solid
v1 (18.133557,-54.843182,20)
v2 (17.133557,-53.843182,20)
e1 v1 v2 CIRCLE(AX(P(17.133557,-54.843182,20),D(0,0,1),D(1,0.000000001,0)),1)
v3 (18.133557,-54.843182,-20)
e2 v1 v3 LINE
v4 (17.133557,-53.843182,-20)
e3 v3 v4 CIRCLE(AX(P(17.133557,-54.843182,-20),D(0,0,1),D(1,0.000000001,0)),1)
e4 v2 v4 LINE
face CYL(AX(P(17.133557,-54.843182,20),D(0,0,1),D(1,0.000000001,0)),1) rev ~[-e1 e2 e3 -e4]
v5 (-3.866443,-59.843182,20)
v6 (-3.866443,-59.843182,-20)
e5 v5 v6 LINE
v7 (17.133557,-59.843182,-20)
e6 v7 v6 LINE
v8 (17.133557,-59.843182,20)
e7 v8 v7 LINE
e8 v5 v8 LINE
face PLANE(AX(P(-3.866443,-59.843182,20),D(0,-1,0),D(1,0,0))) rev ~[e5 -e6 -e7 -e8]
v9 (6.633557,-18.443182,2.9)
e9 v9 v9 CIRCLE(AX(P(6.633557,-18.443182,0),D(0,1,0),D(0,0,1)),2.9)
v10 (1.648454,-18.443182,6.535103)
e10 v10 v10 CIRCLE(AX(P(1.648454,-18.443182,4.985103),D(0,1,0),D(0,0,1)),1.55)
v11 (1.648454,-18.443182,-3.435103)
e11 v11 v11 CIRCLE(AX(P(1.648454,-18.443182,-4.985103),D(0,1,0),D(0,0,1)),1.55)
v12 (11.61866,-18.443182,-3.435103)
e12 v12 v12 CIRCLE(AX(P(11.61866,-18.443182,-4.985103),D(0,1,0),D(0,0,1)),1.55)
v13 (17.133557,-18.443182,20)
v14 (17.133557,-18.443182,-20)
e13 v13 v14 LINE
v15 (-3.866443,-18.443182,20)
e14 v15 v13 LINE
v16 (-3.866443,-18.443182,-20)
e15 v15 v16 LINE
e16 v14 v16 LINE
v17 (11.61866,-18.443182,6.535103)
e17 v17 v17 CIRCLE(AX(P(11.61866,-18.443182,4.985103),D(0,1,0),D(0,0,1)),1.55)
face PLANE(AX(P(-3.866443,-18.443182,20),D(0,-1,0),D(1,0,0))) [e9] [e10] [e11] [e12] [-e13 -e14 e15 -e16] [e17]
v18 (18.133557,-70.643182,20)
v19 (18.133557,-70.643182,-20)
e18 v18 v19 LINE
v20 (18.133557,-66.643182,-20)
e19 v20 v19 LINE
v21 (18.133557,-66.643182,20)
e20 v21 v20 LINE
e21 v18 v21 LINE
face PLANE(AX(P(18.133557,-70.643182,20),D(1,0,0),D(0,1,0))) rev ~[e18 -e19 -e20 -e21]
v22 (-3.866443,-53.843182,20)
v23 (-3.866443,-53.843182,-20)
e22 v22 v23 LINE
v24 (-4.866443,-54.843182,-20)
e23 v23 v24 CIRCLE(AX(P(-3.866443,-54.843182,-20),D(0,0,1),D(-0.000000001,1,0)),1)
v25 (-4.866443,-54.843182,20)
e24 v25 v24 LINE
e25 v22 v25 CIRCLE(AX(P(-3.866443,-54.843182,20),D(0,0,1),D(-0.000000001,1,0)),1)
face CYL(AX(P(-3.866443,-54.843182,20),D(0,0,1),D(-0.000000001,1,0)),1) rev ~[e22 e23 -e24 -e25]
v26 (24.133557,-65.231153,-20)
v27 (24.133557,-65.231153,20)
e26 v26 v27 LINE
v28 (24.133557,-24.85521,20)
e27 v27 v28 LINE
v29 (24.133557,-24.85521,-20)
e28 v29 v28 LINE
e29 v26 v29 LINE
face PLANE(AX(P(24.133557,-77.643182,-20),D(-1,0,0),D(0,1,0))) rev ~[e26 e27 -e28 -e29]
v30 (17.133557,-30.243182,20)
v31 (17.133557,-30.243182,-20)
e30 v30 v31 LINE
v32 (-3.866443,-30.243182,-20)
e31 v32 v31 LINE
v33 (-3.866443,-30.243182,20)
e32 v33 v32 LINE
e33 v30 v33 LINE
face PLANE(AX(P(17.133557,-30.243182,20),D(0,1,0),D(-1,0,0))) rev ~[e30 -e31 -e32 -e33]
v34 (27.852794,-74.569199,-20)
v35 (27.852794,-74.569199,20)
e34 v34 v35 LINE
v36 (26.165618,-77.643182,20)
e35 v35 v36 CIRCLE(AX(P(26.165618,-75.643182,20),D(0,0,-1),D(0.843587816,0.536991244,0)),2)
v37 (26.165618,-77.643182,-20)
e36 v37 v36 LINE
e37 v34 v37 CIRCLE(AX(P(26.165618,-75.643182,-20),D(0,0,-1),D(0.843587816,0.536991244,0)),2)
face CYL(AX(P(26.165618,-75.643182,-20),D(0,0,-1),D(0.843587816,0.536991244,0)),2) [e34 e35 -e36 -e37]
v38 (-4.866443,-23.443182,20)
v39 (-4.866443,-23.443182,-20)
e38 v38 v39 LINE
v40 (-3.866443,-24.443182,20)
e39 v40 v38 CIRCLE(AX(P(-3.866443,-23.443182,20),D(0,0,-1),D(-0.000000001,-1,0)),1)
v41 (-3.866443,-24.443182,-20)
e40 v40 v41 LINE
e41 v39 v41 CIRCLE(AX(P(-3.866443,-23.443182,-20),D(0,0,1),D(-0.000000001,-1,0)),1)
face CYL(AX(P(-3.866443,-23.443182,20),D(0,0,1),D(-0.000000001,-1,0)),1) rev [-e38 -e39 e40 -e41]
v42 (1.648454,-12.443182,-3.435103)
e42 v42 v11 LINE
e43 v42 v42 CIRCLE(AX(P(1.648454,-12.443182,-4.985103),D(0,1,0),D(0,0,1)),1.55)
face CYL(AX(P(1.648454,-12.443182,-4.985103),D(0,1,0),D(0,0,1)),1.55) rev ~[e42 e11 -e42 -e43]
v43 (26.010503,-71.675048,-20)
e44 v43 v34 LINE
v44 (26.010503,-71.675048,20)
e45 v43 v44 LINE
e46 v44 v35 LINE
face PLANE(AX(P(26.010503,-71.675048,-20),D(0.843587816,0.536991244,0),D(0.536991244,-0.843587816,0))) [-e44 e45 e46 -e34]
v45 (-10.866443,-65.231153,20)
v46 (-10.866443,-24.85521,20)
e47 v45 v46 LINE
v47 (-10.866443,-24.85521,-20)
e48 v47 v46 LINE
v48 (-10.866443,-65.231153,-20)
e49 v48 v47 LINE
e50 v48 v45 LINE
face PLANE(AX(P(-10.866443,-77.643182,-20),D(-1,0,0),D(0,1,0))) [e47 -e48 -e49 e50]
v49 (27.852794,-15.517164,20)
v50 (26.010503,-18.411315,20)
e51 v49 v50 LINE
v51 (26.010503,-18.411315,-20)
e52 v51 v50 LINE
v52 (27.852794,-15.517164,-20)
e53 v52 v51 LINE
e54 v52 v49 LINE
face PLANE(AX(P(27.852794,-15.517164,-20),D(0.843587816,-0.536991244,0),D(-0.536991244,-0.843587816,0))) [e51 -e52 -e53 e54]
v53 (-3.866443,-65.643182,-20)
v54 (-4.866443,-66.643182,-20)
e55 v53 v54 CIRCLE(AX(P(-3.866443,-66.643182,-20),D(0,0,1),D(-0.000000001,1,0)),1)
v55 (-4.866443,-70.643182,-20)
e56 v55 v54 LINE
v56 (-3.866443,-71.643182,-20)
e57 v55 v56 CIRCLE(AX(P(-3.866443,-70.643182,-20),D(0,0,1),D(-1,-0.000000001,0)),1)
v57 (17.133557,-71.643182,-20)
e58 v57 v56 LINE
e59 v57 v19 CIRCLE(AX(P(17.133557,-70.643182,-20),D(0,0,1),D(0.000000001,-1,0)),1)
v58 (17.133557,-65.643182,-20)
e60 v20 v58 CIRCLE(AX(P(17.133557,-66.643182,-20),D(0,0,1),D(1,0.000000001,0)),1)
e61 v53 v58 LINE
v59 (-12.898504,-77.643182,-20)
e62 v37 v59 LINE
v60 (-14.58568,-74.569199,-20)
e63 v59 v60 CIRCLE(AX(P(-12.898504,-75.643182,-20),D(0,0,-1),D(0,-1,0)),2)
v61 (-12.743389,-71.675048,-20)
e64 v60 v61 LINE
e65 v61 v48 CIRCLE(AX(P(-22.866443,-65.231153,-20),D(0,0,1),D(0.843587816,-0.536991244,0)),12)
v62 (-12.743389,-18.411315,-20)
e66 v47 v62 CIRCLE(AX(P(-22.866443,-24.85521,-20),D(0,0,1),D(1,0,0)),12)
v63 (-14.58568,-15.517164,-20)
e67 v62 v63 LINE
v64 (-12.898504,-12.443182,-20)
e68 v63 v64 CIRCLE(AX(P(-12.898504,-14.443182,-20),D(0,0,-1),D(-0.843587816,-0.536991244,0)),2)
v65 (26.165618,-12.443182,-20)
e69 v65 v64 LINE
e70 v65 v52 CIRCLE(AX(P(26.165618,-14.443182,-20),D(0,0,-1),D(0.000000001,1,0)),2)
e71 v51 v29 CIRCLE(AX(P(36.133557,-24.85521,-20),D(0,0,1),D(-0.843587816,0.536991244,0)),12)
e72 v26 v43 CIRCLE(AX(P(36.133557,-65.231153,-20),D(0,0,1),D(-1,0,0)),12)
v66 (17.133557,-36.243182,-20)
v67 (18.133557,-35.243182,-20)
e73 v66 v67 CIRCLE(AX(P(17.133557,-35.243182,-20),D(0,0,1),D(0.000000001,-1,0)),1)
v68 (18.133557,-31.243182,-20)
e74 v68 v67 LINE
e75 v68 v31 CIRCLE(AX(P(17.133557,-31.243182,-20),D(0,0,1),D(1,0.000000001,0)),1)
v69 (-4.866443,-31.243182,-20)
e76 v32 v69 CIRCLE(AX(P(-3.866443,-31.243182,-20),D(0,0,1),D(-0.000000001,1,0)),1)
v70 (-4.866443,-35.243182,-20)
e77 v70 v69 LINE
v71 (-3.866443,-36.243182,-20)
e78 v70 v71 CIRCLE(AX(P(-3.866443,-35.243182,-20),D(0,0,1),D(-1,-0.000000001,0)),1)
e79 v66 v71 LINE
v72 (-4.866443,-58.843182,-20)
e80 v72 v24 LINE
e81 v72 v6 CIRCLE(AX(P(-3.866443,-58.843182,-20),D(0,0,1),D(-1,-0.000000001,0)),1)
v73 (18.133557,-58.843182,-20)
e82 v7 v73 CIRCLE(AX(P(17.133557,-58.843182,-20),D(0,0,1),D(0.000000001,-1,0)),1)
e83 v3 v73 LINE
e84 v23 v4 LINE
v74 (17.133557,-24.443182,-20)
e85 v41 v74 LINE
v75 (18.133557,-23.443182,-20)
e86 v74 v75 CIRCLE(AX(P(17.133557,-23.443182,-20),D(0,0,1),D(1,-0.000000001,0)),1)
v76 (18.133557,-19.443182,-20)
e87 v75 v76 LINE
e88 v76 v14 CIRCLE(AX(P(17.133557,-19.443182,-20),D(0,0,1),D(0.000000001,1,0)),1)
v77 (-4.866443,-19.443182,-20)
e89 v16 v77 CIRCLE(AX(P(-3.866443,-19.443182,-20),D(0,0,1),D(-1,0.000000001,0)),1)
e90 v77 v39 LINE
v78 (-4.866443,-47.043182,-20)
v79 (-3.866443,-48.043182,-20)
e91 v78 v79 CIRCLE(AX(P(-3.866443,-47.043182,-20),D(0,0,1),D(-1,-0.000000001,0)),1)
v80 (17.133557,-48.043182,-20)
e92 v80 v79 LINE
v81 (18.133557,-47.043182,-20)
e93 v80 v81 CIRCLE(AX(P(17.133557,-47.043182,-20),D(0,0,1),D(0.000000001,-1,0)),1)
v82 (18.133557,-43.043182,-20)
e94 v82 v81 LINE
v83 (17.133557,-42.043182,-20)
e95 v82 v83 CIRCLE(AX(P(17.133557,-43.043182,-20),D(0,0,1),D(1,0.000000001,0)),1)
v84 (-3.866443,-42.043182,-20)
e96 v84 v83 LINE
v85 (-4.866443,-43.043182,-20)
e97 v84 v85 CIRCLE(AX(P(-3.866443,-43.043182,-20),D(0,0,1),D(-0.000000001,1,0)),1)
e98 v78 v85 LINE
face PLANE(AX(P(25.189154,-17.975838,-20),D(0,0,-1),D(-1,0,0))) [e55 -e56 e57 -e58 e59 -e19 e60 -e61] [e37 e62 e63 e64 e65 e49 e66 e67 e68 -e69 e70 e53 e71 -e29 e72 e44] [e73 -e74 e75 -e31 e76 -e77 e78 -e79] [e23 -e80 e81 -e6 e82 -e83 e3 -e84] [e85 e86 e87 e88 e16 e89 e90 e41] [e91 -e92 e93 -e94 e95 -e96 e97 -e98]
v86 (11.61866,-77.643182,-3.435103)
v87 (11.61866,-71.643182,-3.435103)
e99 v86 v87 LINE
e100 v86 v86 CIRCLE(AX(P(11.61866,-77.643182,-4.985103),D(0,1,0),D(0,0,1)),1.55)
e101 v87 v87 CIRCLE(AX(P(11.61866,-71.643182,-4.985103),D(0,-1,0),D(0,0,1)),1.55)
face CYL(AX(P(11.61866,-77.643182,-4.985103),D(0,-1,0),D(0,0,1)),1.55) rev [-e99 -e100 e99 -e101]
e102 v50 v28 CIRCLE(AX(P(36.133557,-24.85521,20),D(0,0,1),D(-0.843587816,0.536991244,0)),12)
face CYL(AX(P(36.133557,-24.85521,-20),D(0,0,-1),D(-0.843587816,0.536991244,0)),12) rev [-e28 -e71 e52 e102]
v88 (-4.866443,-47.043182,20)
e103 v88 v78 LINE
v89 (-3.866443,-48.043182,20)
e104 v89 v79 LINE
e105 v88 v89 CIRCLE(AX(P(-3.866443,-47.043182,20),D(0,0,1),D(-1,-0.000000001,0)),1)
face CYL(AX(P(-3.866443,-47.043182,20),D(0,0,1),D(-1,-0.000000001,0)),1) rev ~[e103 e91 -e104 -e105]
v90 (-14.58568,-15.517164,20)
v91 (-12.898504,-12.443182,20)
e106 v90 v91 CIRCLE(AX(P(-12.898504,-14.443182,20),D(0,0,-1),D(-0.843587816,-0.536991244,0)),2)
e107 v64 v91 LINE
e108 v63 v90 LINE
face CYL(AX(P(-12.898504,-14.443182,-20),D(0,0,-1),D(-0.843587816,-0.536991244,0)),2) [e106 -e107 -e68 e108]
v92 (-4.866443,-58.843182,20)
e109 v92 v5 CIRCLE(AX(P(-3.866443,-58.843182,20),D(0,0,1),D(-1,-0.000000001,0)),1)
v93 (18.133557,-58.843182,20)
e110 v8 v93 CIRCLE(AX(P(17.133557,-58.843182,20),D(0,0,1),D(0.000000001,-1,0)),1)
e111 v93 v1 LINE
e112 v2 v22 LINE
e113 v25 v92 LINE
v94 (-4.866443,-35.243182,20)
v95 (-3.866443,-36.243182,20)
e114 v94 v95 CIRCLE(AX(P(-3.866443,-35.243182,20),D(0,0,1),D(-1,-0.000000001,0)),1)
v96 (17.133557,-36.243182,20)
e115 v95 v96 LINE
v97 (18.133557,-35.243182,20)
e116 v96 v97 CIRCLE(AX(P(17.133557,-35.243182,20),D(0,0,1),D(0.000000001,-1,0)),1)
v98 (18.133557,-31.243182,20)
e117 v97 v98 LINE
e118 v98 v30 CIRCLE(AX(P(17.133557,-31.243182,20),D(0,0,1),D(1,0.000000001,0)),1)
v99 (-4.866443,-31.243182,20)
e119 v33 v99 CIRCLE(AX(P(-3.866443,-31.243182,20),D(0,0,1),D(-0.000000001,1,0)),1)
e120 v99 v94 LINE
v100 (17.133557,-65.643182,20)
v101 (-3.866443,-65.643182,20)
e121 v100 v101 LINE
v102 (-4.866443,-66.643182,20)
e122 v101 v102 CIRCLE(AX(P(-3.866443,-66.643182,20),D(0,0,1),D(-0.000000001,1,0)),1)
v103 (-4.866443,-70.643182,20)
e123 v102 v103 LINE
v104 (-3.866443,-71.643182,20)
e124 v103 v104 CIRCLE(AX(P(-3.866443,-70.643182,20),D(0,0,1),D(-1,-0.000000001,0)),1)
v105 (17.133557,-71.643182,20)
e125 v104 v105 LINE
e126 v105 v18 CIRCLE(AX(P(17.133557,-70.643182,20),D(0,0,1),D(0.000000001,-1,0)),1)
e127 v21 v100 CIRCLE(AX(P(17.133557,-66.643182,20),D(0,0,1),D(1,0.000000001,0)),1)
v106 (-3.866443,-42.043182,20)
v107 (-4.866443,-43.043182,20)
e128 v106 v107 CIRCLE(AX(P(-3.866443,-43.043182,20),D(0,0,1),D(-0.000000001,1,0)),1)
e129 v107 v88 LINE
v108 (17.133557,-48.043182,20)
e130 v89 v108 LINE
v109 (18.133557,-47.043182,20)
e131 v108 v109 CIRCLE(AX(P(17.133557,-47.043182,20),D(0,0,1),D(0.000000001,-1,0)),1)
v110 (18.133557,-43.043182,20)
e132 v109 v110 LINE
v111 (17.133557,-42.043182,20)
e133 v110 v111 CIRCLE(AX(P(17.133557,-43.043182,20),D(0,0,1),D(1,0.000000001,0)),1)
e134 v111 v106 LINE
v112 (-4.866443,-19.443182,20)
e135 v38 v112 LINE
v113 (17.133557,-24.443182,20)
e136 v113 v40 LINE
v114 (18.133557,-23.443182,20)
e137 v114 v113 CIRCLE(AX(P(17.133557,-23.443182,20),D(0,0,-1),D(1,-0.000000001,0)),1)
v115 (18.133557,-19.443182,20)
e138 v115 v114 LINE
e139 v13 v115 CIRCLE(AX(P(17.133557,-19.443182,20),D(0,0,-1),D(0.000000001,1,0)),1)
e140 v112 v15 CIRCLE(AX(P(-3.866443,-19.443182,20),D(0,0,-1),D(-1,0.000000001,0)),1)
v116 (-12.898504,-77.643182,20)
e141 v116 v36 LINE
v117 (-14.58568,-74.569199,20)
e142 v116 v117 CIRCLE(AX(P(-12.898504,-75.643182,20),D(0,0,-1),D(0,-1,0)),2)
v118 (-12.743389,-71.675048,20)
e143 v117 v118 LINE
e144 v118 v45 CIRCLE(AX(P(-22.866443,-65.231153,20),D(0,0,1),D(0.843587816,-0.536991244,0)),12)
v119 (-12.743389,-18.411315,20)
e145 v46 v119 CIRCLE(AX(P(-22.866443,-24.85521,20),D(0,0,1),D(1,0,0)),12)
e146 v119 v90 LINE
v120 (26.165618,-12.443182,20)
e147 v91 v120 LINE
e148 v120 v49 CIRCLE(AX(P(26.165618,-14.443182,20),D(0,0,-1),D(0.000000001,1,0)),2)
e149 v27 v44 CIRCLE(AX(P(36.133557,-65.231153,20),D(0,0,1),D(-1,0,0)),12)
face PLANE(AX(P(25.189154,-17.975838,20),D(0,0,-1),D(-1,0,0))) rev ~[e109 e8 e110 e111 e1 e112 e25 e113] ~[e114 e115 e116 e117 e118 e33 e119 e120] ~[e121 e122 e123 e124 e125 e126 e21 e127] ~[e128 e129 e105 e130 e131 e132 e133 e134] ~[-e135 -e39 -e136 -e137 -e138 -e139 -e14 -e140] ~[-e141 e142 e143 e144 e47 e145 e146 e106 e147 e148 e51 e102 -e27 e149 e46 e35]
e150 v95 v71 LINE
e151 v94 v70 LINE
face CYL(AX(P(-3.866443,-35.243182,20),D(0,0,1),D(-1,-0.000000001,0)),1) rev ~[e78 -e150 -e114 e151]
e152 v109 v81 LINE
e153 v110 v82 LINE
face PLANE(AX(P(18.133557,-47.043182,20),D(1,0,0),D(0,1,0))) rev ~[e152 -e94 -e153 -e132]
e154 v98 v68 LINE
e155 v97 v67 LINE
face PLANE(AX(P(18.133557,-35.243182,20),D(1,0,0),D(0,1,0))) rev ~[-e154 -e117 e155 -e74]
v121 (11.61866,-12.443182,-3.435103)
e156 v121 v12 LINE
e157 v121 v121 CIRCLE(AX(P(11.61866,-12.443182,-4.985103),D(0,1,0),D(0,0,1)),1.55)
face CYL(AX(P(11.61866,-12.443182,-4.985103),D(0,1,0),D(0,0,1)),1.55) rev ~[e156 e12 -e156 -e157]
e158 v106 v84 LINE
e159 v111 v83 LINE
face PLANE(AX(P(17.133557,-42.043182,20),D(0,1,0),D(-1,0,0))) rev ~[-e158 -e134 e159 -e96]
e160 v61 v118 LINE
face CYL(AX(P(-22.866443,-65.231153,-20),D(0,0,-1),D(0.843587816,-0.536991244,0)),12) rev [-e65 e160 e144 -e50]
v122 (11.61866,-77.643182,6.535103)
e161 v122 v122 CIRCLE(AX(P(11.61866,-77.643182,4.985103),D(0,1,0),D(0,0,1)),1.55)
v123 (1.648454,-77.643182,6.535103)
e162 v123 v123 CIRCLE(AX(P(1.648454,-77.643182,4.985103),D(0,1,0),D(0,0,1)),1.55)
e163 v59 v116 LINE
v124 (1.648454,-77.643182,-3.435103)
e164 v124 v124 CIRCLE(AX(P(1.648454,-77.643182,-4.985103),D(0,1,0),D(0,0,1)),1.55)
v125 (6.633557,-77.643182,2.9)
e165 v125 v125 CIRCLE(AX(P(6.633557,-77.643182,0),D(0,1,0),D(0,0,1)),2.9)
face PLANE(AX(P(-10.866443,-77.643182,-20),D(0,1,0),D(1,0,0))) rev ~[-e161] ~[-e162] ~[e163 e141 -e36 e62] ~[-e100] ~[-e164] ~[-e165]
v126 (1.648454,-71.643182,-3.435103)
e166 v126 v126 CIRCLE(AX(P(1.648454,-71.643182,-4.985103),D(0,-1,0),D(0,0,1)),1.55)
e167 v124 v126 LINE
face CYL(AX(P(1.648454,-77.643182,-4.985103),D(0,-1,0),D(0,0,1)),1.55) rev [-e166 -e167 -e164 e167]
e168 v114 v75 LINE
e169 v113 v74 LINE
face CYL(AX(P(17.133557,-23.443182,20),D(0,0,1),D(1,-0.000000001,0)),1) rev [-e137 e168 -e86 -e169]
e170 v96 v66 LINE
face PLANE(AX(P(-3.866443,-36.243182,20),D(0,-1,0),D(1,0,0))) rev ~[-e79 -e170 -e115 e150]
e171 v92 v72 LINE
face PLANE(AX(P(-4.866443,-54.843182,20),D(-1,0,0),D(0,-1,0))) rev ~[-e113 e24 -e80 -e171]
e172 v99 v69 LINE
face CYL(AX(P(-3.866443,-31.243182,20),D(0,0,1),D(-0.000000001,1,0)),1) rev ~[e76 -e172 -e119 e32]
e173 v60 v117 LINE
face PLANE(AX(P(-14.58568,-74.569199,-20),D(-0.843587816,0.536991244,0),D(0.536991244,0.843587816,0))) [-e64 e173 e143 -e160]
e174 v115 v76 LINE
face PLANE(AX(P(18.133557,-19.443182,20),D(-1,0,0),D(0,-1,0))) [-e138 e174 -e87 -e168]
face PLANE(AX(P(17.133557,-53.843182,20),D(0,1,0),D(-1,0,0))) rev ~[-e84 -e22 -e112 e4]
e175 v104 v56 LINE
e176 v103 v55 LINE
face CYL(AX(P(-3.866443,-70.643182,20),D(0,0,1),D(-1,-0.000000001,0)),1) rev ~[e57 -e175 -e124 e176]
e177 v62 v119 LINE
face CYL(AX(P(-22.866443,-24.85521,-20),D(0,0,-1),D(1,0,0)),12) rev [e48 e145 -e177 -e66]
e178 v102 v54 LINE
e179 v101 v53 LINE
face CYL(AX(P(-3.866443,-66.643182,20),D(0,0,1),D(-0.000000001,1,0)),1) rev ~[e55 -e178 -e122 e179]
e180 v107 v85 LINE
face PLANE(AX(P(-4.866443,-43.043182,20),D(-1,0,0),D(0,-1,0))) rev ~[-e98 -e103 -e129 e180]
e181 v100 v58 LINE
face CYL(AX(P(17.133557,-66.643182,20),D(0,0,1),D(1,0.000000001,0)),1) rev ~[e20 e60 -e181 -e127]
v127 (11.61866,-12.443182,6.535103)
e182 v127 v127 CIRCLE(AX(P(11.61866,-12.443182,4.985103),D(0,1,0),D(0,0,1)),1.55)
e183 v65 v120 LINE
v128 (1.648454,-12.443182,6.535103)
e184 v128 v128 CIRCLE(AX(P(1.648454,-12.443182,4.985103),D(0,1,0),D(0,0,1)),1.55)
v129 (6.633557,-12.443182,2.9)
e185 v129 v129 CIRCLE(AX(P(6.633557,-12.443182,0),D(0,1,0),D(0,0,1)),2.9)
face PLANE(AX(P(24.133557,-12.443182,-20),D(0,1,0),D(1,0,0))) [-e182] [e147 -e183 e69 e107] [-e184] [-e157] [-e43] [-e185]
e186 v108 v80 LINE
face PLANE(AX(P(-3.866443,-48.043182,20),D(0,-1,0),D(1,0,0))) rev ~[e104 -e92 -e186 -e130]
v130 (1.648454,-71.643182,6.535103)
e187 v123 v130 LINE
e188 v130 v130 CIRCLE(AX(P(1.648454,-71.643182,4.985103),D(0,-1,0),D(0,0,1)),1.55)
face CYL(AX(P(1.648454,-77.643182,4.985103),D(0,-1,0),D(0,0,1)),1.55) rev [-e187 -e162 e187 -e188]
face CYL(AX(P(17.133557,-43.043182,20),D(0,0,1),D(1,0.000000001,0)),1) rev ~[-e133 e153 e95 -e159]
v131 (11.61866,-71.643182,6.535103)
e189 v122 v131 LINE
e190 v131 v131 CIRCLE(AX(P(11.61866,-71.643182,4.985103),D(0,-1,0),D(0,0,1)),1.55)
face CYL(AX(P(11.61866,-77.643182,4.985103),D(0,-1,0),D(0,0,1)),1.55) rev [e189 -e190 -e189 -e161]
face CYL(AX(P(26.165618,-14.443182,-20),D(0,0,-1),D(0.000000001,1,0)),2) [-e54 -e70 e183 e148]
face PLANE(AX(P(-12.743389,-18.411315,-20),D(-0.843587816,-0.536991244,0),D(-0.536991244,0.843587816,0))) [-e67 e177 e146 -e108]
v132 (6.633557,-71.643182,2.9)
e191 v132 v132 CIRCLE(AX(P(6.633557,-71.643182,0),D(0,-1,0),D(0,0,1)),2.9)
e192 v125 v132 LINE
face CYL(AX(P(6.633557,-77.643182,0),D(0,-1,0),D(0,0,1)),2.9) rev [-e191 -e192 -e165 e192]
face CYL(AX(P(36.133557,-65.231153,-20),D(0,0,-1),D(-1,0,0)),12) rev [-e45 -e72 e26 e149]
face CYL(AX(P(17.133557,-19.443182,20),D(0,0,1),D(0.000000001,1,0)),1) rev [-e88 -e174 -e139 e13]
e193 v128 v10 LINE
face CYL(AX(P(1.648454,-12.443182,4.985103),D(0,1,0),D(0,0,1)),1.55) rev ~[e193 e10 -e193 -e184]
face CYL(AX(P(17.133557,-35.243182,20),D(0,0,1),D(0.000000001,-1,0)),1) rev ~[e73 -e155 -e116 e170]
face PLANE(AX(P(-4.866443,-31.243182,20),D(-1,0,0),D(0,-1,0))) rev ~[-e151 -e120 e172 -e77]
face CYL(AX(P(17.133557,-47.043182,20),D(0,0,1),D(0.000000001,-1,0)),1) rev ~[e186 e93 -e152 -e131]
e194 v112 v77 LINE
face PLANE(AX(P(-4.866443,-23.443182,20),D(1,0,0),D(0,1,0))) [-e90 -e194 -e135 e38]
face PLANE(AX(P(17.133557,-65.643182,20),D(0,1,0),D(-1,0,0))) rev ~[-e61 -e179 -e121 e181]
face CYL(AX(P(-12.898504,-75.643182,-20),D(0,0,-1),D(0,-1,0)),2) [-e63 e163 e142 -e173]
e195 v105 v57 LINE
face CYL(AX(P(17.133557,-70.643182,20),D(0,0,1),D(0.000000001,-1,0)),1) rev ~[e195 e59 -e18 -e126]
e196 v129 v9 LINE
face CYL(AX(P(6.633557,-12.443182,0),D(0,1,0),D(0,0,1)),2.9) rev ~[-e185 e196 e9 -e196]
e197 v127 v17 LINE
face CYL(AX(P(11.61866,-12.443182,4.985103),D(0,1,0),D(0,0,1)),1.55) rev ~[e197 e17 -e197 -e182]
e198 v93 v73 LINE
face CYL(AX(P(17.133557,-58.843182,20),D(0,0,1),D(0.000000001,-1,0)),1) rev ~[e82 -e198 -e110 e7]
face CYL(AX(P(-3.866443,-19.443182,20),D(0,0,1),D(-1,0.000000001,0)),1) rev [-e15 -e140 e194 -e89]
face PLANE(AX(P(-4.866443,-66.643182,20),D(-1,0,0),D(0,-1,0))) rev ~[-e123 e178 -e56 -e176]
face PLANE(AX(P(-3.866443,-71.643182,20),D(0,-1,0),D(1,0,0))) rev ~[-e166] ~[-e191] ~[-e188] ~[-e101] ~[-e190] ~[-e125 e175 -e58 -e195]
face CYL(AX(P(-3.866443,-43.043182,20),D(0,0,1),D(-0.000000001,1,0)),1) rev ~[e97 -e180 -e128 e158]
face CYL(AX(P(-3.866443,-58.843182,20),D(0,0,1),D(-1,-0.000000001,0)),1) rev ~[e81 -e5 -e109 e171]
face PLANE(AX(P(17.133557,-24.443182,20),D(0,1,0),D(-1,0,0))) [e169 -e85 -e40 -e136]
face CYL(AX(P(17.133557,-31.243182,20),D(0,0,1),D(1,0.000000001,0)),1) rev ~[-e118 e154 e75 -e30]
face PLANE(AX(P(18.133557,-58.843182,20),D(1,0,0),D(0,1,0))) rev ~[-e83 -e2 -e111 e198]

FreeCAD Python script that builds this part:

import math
import FreeCAD as App
import Part
import Sketcher
from FreeCAD import Vector

doc = App.newDocument("Part")
body = doc.addObject("PartDesign::Body", "Body")

sketch1 = body.newObject("Sketcher::SketchObject", "Sketch")
sketch1.AttachmentSupport = (doc.getObject("XY_Plane"), [""])
sketch1.MapMode = "FlatFace"
sketch1.addGeometry(Part.LineSegment(Vector(-11, -12, 0), Vector(-11, -78, 0)), False)
sketch1.addGeometry(Part.LineSegment(Vector(-11, -78, 0), Vector(24, -78, 0)), False)
sketch1.addGeometry(Part.LineSegment(Vector(24, -78, 0), Vector(24, -12, 0)), False)
sketch1.addGeometry(Part.LineSegment(Vector(24, -12, 0), Vector(-11, -12, 0)), False)
sketch1.addConstraint(Sketcher.Constraint("Coincident", 0, 2, 1, 1))
sketch1.addConstraint(Sketcher.Constraint("Coincident", 1, 2, 2, 1))
sketch1.addConstraint(Sketcher.Constraint("Coincident", 2, 2, 3, 1))
sketch1.addConstraint(Sketcher.Constraint("Coincident", 3, 2, 0, 1))
sketch1.addConstraint(Sketcher.Constraint("Vertical", 0))
sketch1.addConstraint(Sketcher.Constraint("Horizontal", 1))
sketch1.addConstraint(Sketcher.Constraint("Vertical", 2))
sketch1.addConstraint(Sketcher.Constraint("Horizontal", 3))
sketch1.addConstraint(Sketcher.Constraint("DistanceX", 1, 1, 1, 2, 35.0))
sketch1.addConstraint(Sketcher.Constraint("DistanceY", 0, 2, 0, 1, 65.2))
sketch1.addConstraint(Sketcher.Constraint("DistanceY", 0, 2, -1, 1, 77.643182))
sketch1.addConstraint(Sketcher.Constraint("DistanceX", 0, 2, -1, 1, 10.866443))
pad1 = body.newObject("PartDesign::Pad", "Pad")
pad1.Profile = sketch1
pad1.Type = "TwoLengths"
pad1.Length = 20
pad1.Length2 = 20

sketch2 = body.newObject("Sketcher::SketchObject", "Sketch001")
sketch2.AttachmentSupport = (doc.getObject("XY_Plane"), [""])
sketch2.MapMode = "FlatFace"
sketch2.AttachmentOffset = App.Placement(Vector(0, 0, 20), App.Rotation())
sketch2.addGeometry(Part.LineSegment(Vector(-4.9, -31.2, 0), Vector(-4.9, -35.2, 0)), False)
sketch2.addGeometry(Part.ArcOfCircle(Part.Circle(Vector(-3.9, -35.2, 0), Vector(0, 0, 1), 1), math.radians(-180), math.radians(-90)), False)
sketch2.addGeometry(Part.LineSegment(Vector(-3.9, -36.2, 0), Vector(17.1, -36.2, 0)), False)
sketch2.addGeometry(Part.ArcOfCircle(Part.Circle(Vector(17.1, -35.2, 0), Vector(0, 0, 1), 1), math.radians(-90), math.radians(0)), False)
sketch2.addGeometry(Part.LineSegment(Vector(18.1, -35.2, 0), Vector(18.1, -31.2, 0)), False)
sketch2.addGeometry(Part.ArcOfCircle(Part.Circle(Vector(17.1, -31.2, 0), Vector(0, 0, 1), 1), math.radians(0), math.radians(90)), False)
sketch2.addGeometry(Part.LineSegment(Vector(17.1, -30.2, 0), Vector(-3.9, -30.2, 0)), False)
sketch2.addGeometry(Part.ArcOfCircle(Part.Circle(Vector(-3.9, -31.2, 0), Vector(0, 0, 1), 1), math.radians(90), math.radians(180)), False)
sketch2.addConstraint(Sketcher.Constraint("Tangent", 0, 2, 1, 1))
sketch2.addConstraint(Sketcher.Constraint("Tangent", 1, 2, 2, 1))
sketch2.addConstraint(Sketcher.Constraint("Tangent", 2, 2, 3, 1))
sketch2.addConstraint(Sketcher.Constraint("Tangent", 3, 2, 4, 1))
sketch2.addConstraint(Sketcher.Constraint("Tangent", 4, 2, 5, 1))
sketch2.addConstraint(Sketcher.Constraint("Tangent", 5, 2, 6, 1))
sketch2.addConstraint(Sketcher.Constraint("Tangent", 6, 2, 7, 1))
sketch2.addConstraint(Sketcher.Constraint("Tangent", 7, 2, 0, 1))
sketch2.addConstraint(Sketcher.Constraint("Vertical", 0))
sketch2.addConstraint(Sketcher.Constraint("Horizontal", 2))
sketch2.addConstraint(Sketcher.Constraint("Vertical", 4))
sketch2.addConstraint(Sketcher.Constraint("Horizontal", 6))
sketch2.addConstraint(Sketcher.Constraint("Equal", 1, 3))
sketch2.addConstraint(Sketcher.Constraint("Equal", 3, 5))
sketch2.addConstraint(Sketcher.Constraint("Equal", 5, 7))
sketch2.addConstraint(Sketcher.Constraint("Radius", 1, 1.0))
sketch2.addConstraint(Sketcher.Constraint("DistanceX", 2, 1, 2, 2, 21.0))
sketch2.addConstraint(Sketcher.Constraint("DistanceY", 0, 2, 0, 1, 4.0))
sketch2.addConstraint(Sketcher.Constraint("DistanceY", 1, 3, -1, 1, 35.243182))
sketch2.addConstraint(Sketcher.Constraint("DistanceX", 1, 3, -1, 1, 3.866443))
pocket1 = body.newObject("PartDesign::Pocket", "Pocket")
pocket1.Profile = sketch2
pocket1.Type = "UpToFirst"

sketch3 = body.newObject("Sketcher::SketchObject", "Sketch002")
sketch3.AttachmentSupport = (doc.getObject("XY_Plane"), [""])
sketch3.MapMode = "FlatFace"
sketch3.AttachmentOffset = App.Placement(Vector(0, 0, 20), App.Rotation())
sketch3.addGeometry(Part.LineSegment(Vector(-4.9, -43, 0), Vector(-4.9, -47, 0)), False)
sketch3.addGeometry(Part.ArcOfCircle(Part.Circle(Vector(-3.9, -47, 0), Vector(0, 0, 1), 1), math.radians(-180), math.radians(-90)), False)
sketch3.addGeometry(Part.LineSegment(Vector(-3.9, -48, 0), Vector(17.1, -48, 0)), False)
sketch3.addGeometry(Part.ArcOfCircle(Part.Circle(Vector(17.1, -47, 0), Vector(0, 0, 1), 1), math.radians(-90), math.radians(0)), False)
sketch3.addGeometry(Part.LineSegment(Vector(18.1, -47, 0), Vector(18.1, -43, 0)), False)
sketch3.addGeometry(Part.ArcOfCircle(Part.Circle(Vector(17.1, -43, 0), Vector(0, 0, 1), 1), math.radians(0), math.radians(90)), False)
sketch3.addGeometry(Part.LineSegment(Vector(17.1, -42, 0), Vector(-3.9, -42, 0)), False)
sketch3.addGeometry(Part.ArcOfCircle(Part.Circle(Vector(-3.9, -43, 0), Vector(0, 0, 1), 1), math.radians(90), math.radians(180)), False)
sketch3.addConstraint(Sketcher.Constraint("Tangent", 0, 2, 1, 1))
sketch3.addConstraint(Sketcher.Constraint("Tangent", 1, 2, 2, 1))
sketch3.addConstraint(Sketcher.Constraint("Tangent", 2, 2, 3, 1))
sketch3.addConstraint(Sketcher.Constraint("Tangent", 3, 2, 4, 1))
sketch3.addConstraint(Sketcher.Constraint("Tangent", 4, 2, 5, 1))
sketch3.addConstraint(Sketcher.Constraint("Tangent", 5, 2, 6, 1))
sketch3.addConstraint(Sketcher.Constraint("Tangent", 6, 2, 7, 1))
sketch3.addConstraint(Sketcher.Constraint("Tangent", 7, 2, 0, 1))
sketch3.addConstraint(Sketcher.Constraint("Vertical", 0))
sketch3.addConstraint(Sketcher.Constraint("Horizontal", 2))
sketch3.addConstraint(Sketcher.Constraint("Vertical", 4))
sketch3.addConstraint(Sketcher.Constraint("Horizontal", 6))
sketch3.addConstraint(Sketcher.Constraint("Equal", 1, 3))
sketch3.addConstraint(Sketcher.Constraint("Equal", 3, 5))
sketch3.addConstraint(Sketcher.Constraint("Equal", 5, 7))
sketch3.addConstraint(Sketcher.Constraint("Radius", 1, 1.0))
sketch3.addConstraint(Sketcher.Constraint("DistanceX", 2, 1, 2, 2, 21.0))
sketch3.addConstraint(Sketcher.Constraint("DistanceY", 0, 2, 0, 1, 4.0))
sketch3.addConstraint(Sketcher.Constraint("DistanceY", 1, 3, -1, 1, 47.043182))
sketch3.addConstraint(Sketcher.Constraint("DistanceX", 1, 3, -1, 1, 3.866443))
pocket2 = body.newObject("PartDesign::Pocket", "Pocket001")
pocket2.Profile = sketch3
pocket2.Type = "UpToFirst"

sketch4 = body.newObject("Sketcher::SketchObject", "Sketch003")
sketch4.AttachmentSupport = (doc.getObject("XY_Plane"), [""])
sketch4.MapMode = "FlatFace"
sketch4.AttachmentOffset = App.Placement(Vector(0, 0, 20), App.Rotation())
sketch4.addGeometry(Part.LineSegment(Vector(17.1, -18.4, 0), Vector(-3.9, -18.4, 0)), False)
sketch4.addGeometry(Part.ArcOfCircle(Part.Circle(Vector(-3.9, -19.4, 0), Vector(0, 0, 1), 1), math.radians(90), math.radians(180)), False)
sketch4.addGeometry(Part.LineSegment(Vector(-4.9, -19.4, 0), Vector(-4.9, -23.4, 0)), False)
sketch4.addGeometry(Part.ArcOfCircle(Part.Circle(Vector(-3.9, -23.4, 0), Vector(0, 0, 1), 1), math.radians(-180), math.radians(-90)), False)
sketch4.addGeometry(Part.LineSegment(Vector(-3.9, -24.4, 0), Vector(17.1, -24.4, 0)), False)
sketch4.addGeometry(Part.ArcOfCircle(Part.Circle(Vector(17.1, -23.4, 0), Vector(0, 0, 1), 1), math.radians(-90), math.radians(0)), False)
sketch4.addGeometry(Part.LineSegment(Vector(18.1, -23.4, 0), Vector(18.1, -19.4, 0)), False)
sketch4.addGeometry(Part.ArcOfCircle(Part.Circle(Vector(17.1, -19.4, 0), Vector(0, 0, 1), 1), math.radians(0), math.radians(90)), False)
sketch4.addConstraint(Sketcher.Constraint("Tangent", 0, 2, 1, 1))
sketch4.addConstraint(Sketcher.Constraint("Tangent", 1, 2, 2, 1))
sketch4.addConstraint(Sketcher.Constraint("Tangent", 2, 2, 3, 1))
sketch4.addConstraint(Sketcher.Constraint("Tangent", 3, 2, 4, 1))
sketch4.addConstraint(Sketcher.Constraint("Tangent", 4, 2, 5, 1))
sketch4.addConstraint(Sketcher.Constraint("Tangent", 5, 2, 6, 1))
sketch4.addConstraint(Sketcher.Constraint("Tangent", 6, 2, 7, 1))
sketch4.addConstraint(Sketcher.Constraint("Tangent", 7, 2, 0, 1))
sketch4.addConstraint(Sketcher.Constraint("Horizontal", 0))
sketch4.addConstraint(Sketcher.Constraint("Vertical", 2))
sketch4.addConstraint(Sketcher.Constraint("Horizontal", 4))
sketch4.addConstraint(Sketcher.Constraint("Vertical", 6))
sketch4.addConstraint(Sketcher.Constraint("Equal", 1, 3))
sketch4.addConstraint(Sketcher.Constraint("Equal", 3, 5))
sketch4.addConstraint(Sketcher.Constraint("Equal", 5, 7))
sketch4.addConstraint(Sketcher.Constraint("Radius", 1, 1.0))
sketch4.addConstraint(Sketcher.Constraint("DistanceX", 0, 2, 0, 1, 21.0))
sketch4.addConstraint(Sketcher.Constraint("DistanceY", 2, 2, 2, 1, 4.0))
sketch4.addConstraint(Sketcher.Constraint("DistanceY", 1, 3, -1, 1, 19.443182))
sketch4.addConstraint(Sketcher.Constraint("DistanceX", 1, 3, -1, 1, 3.866443))
pocket3 = body.newObject("PartDesign::Pocket", "Pocket002")
pocket3.Profile = sketch4
pocket3.Type = "UpToFirst"

sketch5 = body.newObject("Sketcher::SketchObject", "Sketch004")
sketch5.AttachmentSupport = (doc.getObject("XY_Plane"), [""])
sketch5.MapMode = "FlatFace"
sketch5.AttachmentOffset = App.Placement(Vector(0, 0, 20), App.Rotation())
sketch5.addGeometry(Part.LineSegment(Vector(-4.9, -54.8, 0), Vector(-4.9, -58.8, 0)), False)
sketch5.addGeometry(Part.ArcOfCircle(Part.Circle(Vector(-3.9, -58.8, 0), Vector(0, 0, 1), 1), math.radians(-180), math.radians(-90)), False)
sketch5.addGeometry(Part.LineSegment(Vector(-3.9, -59.8, 0), Vector(17.1, -59.8, 0)), False)
sketch5.addGeometry(Part.ArcOfCircle(Part.Circle(Vector(17.1, -58.8, 0), Vector(0, 0, 1), 1), math.radians(-90), math.radians(0)), False)
sketch5.addGeometry(Part.LineSegment(Vector(18.1, -58.8, 0), Vector(18.1, -54.8, 0)), False)
sketch5.addGeometry(Part.ArcOfCircle(Part.Circle(Vector(17.1, -54.8, 0), Vector(0, 0, 1), 1), math.radians(0), math.radians(90)), False)
sketch5.addGeometry(Part.LineSegment(Vector(17.1, -53.8, 0), Vector(-3.9, -53.8, 0)), False)
sketch5.addGeometry(Part.ArcOfCircle(Part.Circle(Vector(-3.9, -54.8, 0), Vector(0, 0, 1), 1), math.radians(90), math.radians(180)), False)
sketch5.addConstraint(Sketcher.Constraint("Tangent", 0, 2, 1, 1))
sketch5.addConstraint(Sketcher.Constraint("Tangent", 1, 2, 2, 1))
sketch5.addConstraint(Sketcher.Constraint("Tangent", 2, 2, 3, 1))
sketch5.addConstraint(Sketcher.Constraint("Tangent", 3, 2, 4, 1))
sketch5.addConstraint(Sketcher.Constraint("Tangent", 4, 2, 5, 1))
sketch5.addConstraint(Sketcher.Constraint("Tangent", 5, 2, 6, 1))
sketch5.addConstraint(Sketcher.Constraint("Tangent", 6, 2, 7, 1))
sketch5.addConstraint(Sketcher.Constraint("Tangent", 7, 2, 0, 1))
sketch5.addConstraint(Sketcher.Constraint("Vertical", 0))
sketch5.addConstraint(Sketcher.Constraint("Horizontal", 2))
sketch5.addConstraint(Sketcher.Constraint("Vertical", 4))
sketch5.addConstraint(Sketcher.Constraint("Horizontal", 6))
sketch5.addConstraint(Sketcher.Constraint("Equal", 1, 3))
sketch5.addConstraint(Sketcher.Constraint("Equal", 3, 5))
sketch5.addConstraint(Sketcher.Constraint("Equal", 5, 7))
sketch5.addConstraint(Sketcher.Constraint("Radius", 1, 1.0))
sketch5.addConstraint(Sketcher.Constraint("DistanceX", 2, 1, 2, 2, 21.0))
sketch5.addConstraint(Sketcher.Constraint("DistanceY", 0, 2, 0, 1, 4.0))
sketch5.addConstraint(Sketcher.Constraint("DistanceY", 1, 3, -1, 1, 58.843182))
sketch5.addConstraint(Sketcher.Constraint("DistanceX", 1, 3, -1, 1, 3.866443))
pocket4 = body.newObject("PartDesign::Pocket", "Pocket003")
pocket4.Profile = sketch5
pocket4.Type = "UpToFirst"

sketch6 = body.newObject("Sketcher::SketchObject", "Sketch005")
sketch6.AttachmentSupport = (doc.getObject("XY_Plane"), [""])
sketch6.MapMode = "FlatFace"
sketch6.AttachmentOffset = App.Placement(Vector(0, 0, 20), App.Rotation())
sketch6.addGeometry(Part.LineSegment(Vector(-4.9, -66.6, 0), Vector(-4.9, -70.6, 0)), False)
sketch6.addGeometry(Part.ArcOfCircle(Part.Circle(Vector(-3.9, -70.6, 0), Vector(0, 0, 1), 1), math.radians(-180), math.radians(-90)), False)
sketch6.addGeometry(Part.LineSegment(Vector(-3.9, -71.6, 0), Vector(17.1, -71.6, 0)), False)
sketch6.addGeometry(Part.ArcOfCircle(Part.Circle(Vector(17.1, -70.6, 0), Vector(0, 0, 1), 1), math.radians(-90), math.radians(0)), False)
sketch6.addGeometry(Part.LineSegment(Vector(18.1, -70.6, 0), Vector(18.1, -66.6, 0)), False)
sketch6.addGeometry(Part.ArcOfCircle(Part.Circle(Vector(17.1, -66.6, 0), Vector(0, 0, 1), 1), math.radians(0), math.radians(90)), False)
sketch6.addGeometry(Part.LineSegment(Vector(17.1, -65.6, 0), Vector(-3.9, -65.6, 0)), False)
sketch6.addGeometry(Part.ArcOfCircle(Part.Circle(Vector(-3.9, -66.6, 0), Vector(0, 0, 1), 1), math.radians(90), math.radians(180)), False)
sketch6.addConstraint(Sketcher.Constraint("Tangent", 0, 2, 1, 1))
sketch6.addConstraint(Sketcher.Constraint("Tangent", 1, 2, 2, 1))
sketch6.addConstraint(Sketcher.Constraint("Tangent", 2, 2, 3, 1))
sketch6.addConstraint(Sketcher.Constraint("Tangent", 3, 2, 4, 1))
sketch6.addConstraint(Sketcher.Constraint("Tangent", 4, 2, 5, 1))
sketch6.addConstraint(Sketcher.Constraint("Tangent", 5, 2, 6, 1))
sketch6.addConstraint(Sketcher.Constraint("Tangent", 6, 2, 7, 1))
sketch6.addConstraint(Sketcher.Constraint("Tangent", 7, 2, 0, 1))
sketch6.addConstraint(Sketcher.Constraint("Vertical", 0))
sketch6.addConstraint(Sketcher.Constraint("Horizontal", 2))
sketch6.addConstraint(Sketcher.Constraint("Vertical", 4))
sketch6.addConstraint(Sketcher.Constraint("Horizontal", 6))
sketch6.addConstraint(Sketcher.Constraint("Equal", 1, 3))
sketch6.addConstraint(Sketcher.Constraint("Equal", 3, 5))
sketch6.addConstraint(Sketcher.Constraint("Equal", 5, 7))
sketch6.addConstraint(Sketcher.Constraint("Radius", 1, 1.0))
sketch6.addConstraint(Sketcher.Constraint("DistanceX", 2, 1, 2, 2, 21.0))
sketch6.addConstraint(Sketcher.Constraint("DistanceY", 0, 2, 0, 1, 4.0))
sketch6.addConstraint(Sketcher.Constraint("DistanceY", 1, 3, -1, 1, 70.643182))
sketch6.addConstraint(Sketcher.Constraint("DistanceX", 1, 3, -1, 1, 3.866443))
pocket5 = body.newObject("PartDesign::Pocket", "Pocket004")
pocket5.Profile = sketch6
pocket5.Type = "UpToFirst"

sketch7 = body.newObject("Sketcher::SketchObject", "Sketch006")
sketch7.AttachmentSupport = (doc.getObject("XZ_Plane"), [""])
sketch7.MapMode = "FlatFace"
sketch7.AttachmentOffset = App.Placement(Vector(0, 0, 12.443182), App.Rotation())
sketch7.addGeometry(Part.Circle(Vector(1.6, -5, 0), Vector(0, 0, 1), 1.6), False)
sketch7.addGeometry(Part.Circle(Vector(6.6, 0, 0), Vector(0, 0, 1), 2.9), False)
sketch7.addGeometry(Part.Circle(Vector(11.6, -5, 0), Vector(0, 0, 1), 1.6), False)
sketch7.addGeometry(Part.Circle(Vector(11.6, 5, 0), Vector(0, 0, 1), 1.6), False)
sketch7.addGeometry(Part.Circle(Vector(1.6, 5, 0), Vector(0, 0, 1), 1.6), False)
sketch7.addConstraint(Sketcher.Constraint("Equal", 0, 2))
sketch7.addConstraint(Sketcher.Constraint("Equal", 2, 3))
sketch7.addConstraint(Sketcher.Constraint("Equal", 3, 4))
sketch7.addConstraint(Sketcher.Constraint("Symmetric", 2, 3, 3, 3, -1))
sketch7.addConstraint(Sketcher.Constraint("Symmetric", 0, 3, 4, 3, -1))
sketch7.addConstraint(Sketcher.Constraint("PointOnObject", 1, 3, -1))
sketch7.addConstraint(Sketcher.Constraint("Horizontal", 0, 3, 2, 3))
sketch7.addConstraint(Sketcher.Constraint("Diameter", 0, 3.1))
sketch7.addConstraint(Sketcher.Constraint("Diameter", 1, 5.8))
sketch7.addConstraint(Sketcher.Constraint("DistanceX", -1, 1, 2, 3, 11.61866))
sketch7.addConstraint(Sketcher.Constraint("DistanceX", -1, 1, 0, 3, 1.648454))
sketch7.addConstraint(Sketcher.Constraint("DistanceY", 0, 3, -1, 1, 4.985103))
sketch7.addConstraint(Sketcher.Constraint("DistanceX", -1, 1, 1, 3, 6.633557))
pocket6 = body.newObject("PartDesign::Pocket", "Pocket005")
pocket6.Profile = sketch7
pocket6.Length = 10
pocket6.Reversed = True
doc.recompute()

datumplane = body.newObject("PartDesign::Plane", "DatumPlane")
datumplane.AttachmentSupport = (doc.getObject("XZ_Plane"), [""])
datumplane.MapMode = "FlatFace"
datumplane.AttachmentOffset = App.Placement(Vector(0, 0, 45.043182), App.Rotation())
mirrored = body.newObject("PartDesign::Mirrored", "Mirrored")
mirrored.Originals = [pocket6]
mirrored.MirrorPlane = (datumplane, [""])
body.Tip = mirrored

sketch8 = body.newObject("Sketcher::SketchObject", "Sketch007")
sketch8.AttachmentSupport = (doc.getObject("XY_Plane"), [""])
sketch8.MapMode = "FlatFace"
sketch8.AttachmentOffset = App.Placement(Vector(0, 0, -20), App.Rotation())
sketch8.addGeometry(Part.LineSegment(Vector(24.1, -24.9, 0), Vector(24.1, -12.4, 0)), False)
sketch8.addGeometry(Part.LineSegment(Vector(24.1, -12.4, 0), Vector(26.2, -12.4, 0)), False)
sketch8.addGeometry(Part.ArcOfCircle(Part.Circle(Vector(26.2, -14.4, 0), Vector(0, 0, 1), 2), math.radians(-32), math.radians(90)), False)
sketch8.addGeometry(Part.LineSegment(Vector(27.9, -15.5, 0), Vector(26, -18.4, 0)), False)
sketch8.addGeometry(Part.ArcOfCircle(Part.Circle(Vector(36.1, -24.9, 0), Vector(0, 0, 1), 12), math.radians(148), math.radians(180)), False)
sketch8.addGeometry(Part.LineSegment(Vector(24.1, -77.6, 0), Vector(24.1, -65.2, 0)), False)
sketch8.addGeometry(Part.ArcOfCircle(Part.Circle(Vector(36.1, -65.2, 0), Vector(0, 0, 1), 12), math.radians(180), math.radians(212)), False)
sketch8.addGeometry(Part.LineSegment(Vector(26, -71.7, 0), Vector(27.9, -74.6, 0)), False)
sketch8.addGeometry(Part.ArcOfCircle(Part.Circle(Vector(26.2, -75.6, 0), Vector(0, 0, 1), 2), math.radians(-90), math.radians(32)), False)
sketch8.addGeometry(Part.LineSegment(Vector(26.2, -77.6, 0), Vector(24.1, -77.6, 0)), False)
sketch8.addGeometry(Part.LineSegment(Vector(-10.9, -65.2, 0), Vector(-10.9, -77.6, 0)), False)
sketch8.addGeometry(Part.LineSegment(Vector(-10.9, -77.6, 0), Vector(-12.9, -77.6, 0)), False)
sketch8.addGeometry(Part.ArcOfCircle(Part.Circle(Vector(-12.9, -75.6, 0), Vector(0, 0, 1), 2), math.radians(148), math.radians(270)), False)
sketch8.addGeometry(Part.LineSegment(Vector(-14.6, -74.6, 0), Vector(-12.7, -71.7, 0)), False)
sketch8.addGeometry(Part.ArcOfCircle(Part.Circle(Vector(-22.9, -65.2, 0), Vector(0, 0, 1), 12), math.radians(-32), math.radians(0)), False)
sketch8.addGeometry(Part.LineSegment(Vector(-10.9, -12.4, 0), Vector(-10.9, -24.9, 0)), False)
sketch8.addGeometry(Part.ArcOfCircle(Part.Circle(Vector(-22.9, -24.9, 0), Vector(0, 0, 1), 12), math.radians(0), math.radians(32)), False)
sketch8.addGeometry(Part.LineSegment(Vector(-12.7, -18.4, 0), Vector(-14.6, -15.5, 0)), False)
sketch8.addGeometry(Part.ArcOfCircle(Part.Circle(Vector(-12.9, -14.4, 0), Vector(0, 0, 1), 2), math.radians(90), math.radians(212)), False)
sketch8.addGeometry(Part.LineSegment(Vector(-12.9, -12.4, 0), Vector(-10.9, -12.4, 0)), False)
sketch8.addConstraint(Sketcher.Constraint("Coincident", 0, 2, 1, 1))
sketch8.addConstraint(Sketcher.Constraint("Tangent", 1, 2, 2, 2))
sketch8.addConstraint(Sketcher.Constraint("Tangent", 2, 1, 3, 1))
sketch8.addConstraint(Sketcher.Constraint("Tangent", 3, 2, 4, 1))
sketch8.addConstraint(Sketcher.Constraint("Tangent", 4, 2, 0, 1))
sketch8.addConstraint(Sketcher.Constraint("Tangent", 5, 2, 6, 1))
sketch8.addConstraint(Sketcher.Constraint("Tangent", 6, 2, 7, 1))
sketch8.addConstraint(Sketcher.Constraint("Tangent", 7, 2, 8, 2))
sketch8.addConstraint(Sketcher.Constraint("Tangent", 8, 1, 9, 1))
sketch8.addConstraint(Sketcher.Constraint("Coincident", 9, 2, 5, 1))
sketch8.addConstraint(Sketcher.Constraint("Coincident", 10, 2, 11, 1))
sketch8.addConstraint(Sketcher.Constraint("Tangent", 11, 2, 12, 2))
sketch8.addConstraint(Sketcher.Constraint("Tangent", 12, 1, 13, 1))
sketch8.addConstraint(Sketcher.Constraint("Tangent", 13, 2, 14, 1))
sketch8.addConstraint(Sketcher.Constraint("Tangent", 14, 2, 10, 1))
sketch8.addConstraint(Sketcher.Constraint("Tangent", 15, 2, 16, 1))
sketch8.addConstraint(Sketcher.Constraint("Tangent", 16, 2, 17, 1))
sketch8.addConstraint(Sketcher.Constraint("Tangent", 17, 2, 18, 2))
sketch8.addConstraint(Sketcher.Constraint("Tangent", 18, 1, 19, 1))
sketch8.addConstraint(Sketcher.Constraint("Coincident", 19, 2, 15, 1))
sketch8.addConstraint(Sketcher.Constraint("Vertical", 0))
sketch8.addConstraint(Sketcher.Constraint("Horizontal", 1))
sketch8.addConstraint(Sketcher.Constraint("Vertical", 5))
sketch8.addConstraint(Sketcher.Constraint("Horizontal", 9))
sketch8.addConstraint(Sketcher.Constraint("Vertical", 10))
sketch8.addConstraint(Sketcher.Constraint("Horizontal", 11))
sketch8.addConstraint(Sketcher.Constraint("Vertical", 15))
sketch8.addConstraint(Sketcher.Constraint("Horizontal", 19))
sketch8.addConstraint(Sketcher.Constraint("Equal", 4, 6))
sketch8.addConstraint(Sketcher.Constraint("Equal", 2, 8))
sketch8.addConstraint(Sketcher.Constraint("Equal", 8, 12))
sketch8.addConstraint(Sketcher.Constraint("Equal", 6, 14))
sketch8.addConstraint(Sketcher.Constraint("Equal", 14, 16))
sketch8.addConstraint(Sketcher.Constraint("Equal", 12, 18))
sketch8.addConstraint(Sketcher.Constraint("Parallel", 3, 13))
sketch8.addConstraint(Sketcher.Constraint("Parallel", 7, 17))
sketch8.addConstraint(Sketcher.Constraint("Horizontal", 8, 3, 12, 3))
sketch8.addConstraint(Sketcher.Constraint("Horizontal", 6, 3, 14, 3))
sketch8.addConstraint(Sketcher.Constraint("Horizontal", 4, 3, 16, 3))
sketch8.addConstraint(Sketcher.Constraint("Horizontal", 2, 3, 18, 3))
sketch8.addConstraint(Sketcher.Constraint("Horizontal", 7, 2, 12, 1))
sketch8.addConstraint(Sketcher.Constraint("Vertical", 4, 3, 6, 3))
sketch8.addConstraint(Sketcher.Constraint("Vertical", 2, 3, 8, 3))
sketch8.addConstraint(Sketcher.Constraint("Vertical", 14, 3, 16, 3))
sketch8.addConstraint(Sketcher.Constraint("Radius", 2, 2.0))
sketch8.addConstraint(Sketcher.Constraint("Radius", 4, 12.0))
sketch8.addConstraint(Sketcher.Constraint("DistanceX", 14, 3, 6, 3, 59.0))
sketch8.addConstraint(Sketcher.Constraint("DistanceY", 8, 3, 2, 3, 61.2))
sketch8.addConstraint(Sketcher.Constraint("DistanceX", 1, 1, 1, 2, 2.032061))
sketch8.addConstraint(Sketcher.Constraint("DistanceY", 0, 1, 0, 2, 12.412029))
sketch8.addConstraint(Sketcher.Constraint("DistanceY", 7, 2, -1, 1, 74.569199))
sketch8.addConstraint(Sketcher.Constraint("DistanceX", -1, 1, 2, 3, 26.165618))
pad2 = body.newObject("PartDesign::Pad", "Pad001")
pad2.Profile = sketch8
pad2.Length = 40

doc.recompute()
